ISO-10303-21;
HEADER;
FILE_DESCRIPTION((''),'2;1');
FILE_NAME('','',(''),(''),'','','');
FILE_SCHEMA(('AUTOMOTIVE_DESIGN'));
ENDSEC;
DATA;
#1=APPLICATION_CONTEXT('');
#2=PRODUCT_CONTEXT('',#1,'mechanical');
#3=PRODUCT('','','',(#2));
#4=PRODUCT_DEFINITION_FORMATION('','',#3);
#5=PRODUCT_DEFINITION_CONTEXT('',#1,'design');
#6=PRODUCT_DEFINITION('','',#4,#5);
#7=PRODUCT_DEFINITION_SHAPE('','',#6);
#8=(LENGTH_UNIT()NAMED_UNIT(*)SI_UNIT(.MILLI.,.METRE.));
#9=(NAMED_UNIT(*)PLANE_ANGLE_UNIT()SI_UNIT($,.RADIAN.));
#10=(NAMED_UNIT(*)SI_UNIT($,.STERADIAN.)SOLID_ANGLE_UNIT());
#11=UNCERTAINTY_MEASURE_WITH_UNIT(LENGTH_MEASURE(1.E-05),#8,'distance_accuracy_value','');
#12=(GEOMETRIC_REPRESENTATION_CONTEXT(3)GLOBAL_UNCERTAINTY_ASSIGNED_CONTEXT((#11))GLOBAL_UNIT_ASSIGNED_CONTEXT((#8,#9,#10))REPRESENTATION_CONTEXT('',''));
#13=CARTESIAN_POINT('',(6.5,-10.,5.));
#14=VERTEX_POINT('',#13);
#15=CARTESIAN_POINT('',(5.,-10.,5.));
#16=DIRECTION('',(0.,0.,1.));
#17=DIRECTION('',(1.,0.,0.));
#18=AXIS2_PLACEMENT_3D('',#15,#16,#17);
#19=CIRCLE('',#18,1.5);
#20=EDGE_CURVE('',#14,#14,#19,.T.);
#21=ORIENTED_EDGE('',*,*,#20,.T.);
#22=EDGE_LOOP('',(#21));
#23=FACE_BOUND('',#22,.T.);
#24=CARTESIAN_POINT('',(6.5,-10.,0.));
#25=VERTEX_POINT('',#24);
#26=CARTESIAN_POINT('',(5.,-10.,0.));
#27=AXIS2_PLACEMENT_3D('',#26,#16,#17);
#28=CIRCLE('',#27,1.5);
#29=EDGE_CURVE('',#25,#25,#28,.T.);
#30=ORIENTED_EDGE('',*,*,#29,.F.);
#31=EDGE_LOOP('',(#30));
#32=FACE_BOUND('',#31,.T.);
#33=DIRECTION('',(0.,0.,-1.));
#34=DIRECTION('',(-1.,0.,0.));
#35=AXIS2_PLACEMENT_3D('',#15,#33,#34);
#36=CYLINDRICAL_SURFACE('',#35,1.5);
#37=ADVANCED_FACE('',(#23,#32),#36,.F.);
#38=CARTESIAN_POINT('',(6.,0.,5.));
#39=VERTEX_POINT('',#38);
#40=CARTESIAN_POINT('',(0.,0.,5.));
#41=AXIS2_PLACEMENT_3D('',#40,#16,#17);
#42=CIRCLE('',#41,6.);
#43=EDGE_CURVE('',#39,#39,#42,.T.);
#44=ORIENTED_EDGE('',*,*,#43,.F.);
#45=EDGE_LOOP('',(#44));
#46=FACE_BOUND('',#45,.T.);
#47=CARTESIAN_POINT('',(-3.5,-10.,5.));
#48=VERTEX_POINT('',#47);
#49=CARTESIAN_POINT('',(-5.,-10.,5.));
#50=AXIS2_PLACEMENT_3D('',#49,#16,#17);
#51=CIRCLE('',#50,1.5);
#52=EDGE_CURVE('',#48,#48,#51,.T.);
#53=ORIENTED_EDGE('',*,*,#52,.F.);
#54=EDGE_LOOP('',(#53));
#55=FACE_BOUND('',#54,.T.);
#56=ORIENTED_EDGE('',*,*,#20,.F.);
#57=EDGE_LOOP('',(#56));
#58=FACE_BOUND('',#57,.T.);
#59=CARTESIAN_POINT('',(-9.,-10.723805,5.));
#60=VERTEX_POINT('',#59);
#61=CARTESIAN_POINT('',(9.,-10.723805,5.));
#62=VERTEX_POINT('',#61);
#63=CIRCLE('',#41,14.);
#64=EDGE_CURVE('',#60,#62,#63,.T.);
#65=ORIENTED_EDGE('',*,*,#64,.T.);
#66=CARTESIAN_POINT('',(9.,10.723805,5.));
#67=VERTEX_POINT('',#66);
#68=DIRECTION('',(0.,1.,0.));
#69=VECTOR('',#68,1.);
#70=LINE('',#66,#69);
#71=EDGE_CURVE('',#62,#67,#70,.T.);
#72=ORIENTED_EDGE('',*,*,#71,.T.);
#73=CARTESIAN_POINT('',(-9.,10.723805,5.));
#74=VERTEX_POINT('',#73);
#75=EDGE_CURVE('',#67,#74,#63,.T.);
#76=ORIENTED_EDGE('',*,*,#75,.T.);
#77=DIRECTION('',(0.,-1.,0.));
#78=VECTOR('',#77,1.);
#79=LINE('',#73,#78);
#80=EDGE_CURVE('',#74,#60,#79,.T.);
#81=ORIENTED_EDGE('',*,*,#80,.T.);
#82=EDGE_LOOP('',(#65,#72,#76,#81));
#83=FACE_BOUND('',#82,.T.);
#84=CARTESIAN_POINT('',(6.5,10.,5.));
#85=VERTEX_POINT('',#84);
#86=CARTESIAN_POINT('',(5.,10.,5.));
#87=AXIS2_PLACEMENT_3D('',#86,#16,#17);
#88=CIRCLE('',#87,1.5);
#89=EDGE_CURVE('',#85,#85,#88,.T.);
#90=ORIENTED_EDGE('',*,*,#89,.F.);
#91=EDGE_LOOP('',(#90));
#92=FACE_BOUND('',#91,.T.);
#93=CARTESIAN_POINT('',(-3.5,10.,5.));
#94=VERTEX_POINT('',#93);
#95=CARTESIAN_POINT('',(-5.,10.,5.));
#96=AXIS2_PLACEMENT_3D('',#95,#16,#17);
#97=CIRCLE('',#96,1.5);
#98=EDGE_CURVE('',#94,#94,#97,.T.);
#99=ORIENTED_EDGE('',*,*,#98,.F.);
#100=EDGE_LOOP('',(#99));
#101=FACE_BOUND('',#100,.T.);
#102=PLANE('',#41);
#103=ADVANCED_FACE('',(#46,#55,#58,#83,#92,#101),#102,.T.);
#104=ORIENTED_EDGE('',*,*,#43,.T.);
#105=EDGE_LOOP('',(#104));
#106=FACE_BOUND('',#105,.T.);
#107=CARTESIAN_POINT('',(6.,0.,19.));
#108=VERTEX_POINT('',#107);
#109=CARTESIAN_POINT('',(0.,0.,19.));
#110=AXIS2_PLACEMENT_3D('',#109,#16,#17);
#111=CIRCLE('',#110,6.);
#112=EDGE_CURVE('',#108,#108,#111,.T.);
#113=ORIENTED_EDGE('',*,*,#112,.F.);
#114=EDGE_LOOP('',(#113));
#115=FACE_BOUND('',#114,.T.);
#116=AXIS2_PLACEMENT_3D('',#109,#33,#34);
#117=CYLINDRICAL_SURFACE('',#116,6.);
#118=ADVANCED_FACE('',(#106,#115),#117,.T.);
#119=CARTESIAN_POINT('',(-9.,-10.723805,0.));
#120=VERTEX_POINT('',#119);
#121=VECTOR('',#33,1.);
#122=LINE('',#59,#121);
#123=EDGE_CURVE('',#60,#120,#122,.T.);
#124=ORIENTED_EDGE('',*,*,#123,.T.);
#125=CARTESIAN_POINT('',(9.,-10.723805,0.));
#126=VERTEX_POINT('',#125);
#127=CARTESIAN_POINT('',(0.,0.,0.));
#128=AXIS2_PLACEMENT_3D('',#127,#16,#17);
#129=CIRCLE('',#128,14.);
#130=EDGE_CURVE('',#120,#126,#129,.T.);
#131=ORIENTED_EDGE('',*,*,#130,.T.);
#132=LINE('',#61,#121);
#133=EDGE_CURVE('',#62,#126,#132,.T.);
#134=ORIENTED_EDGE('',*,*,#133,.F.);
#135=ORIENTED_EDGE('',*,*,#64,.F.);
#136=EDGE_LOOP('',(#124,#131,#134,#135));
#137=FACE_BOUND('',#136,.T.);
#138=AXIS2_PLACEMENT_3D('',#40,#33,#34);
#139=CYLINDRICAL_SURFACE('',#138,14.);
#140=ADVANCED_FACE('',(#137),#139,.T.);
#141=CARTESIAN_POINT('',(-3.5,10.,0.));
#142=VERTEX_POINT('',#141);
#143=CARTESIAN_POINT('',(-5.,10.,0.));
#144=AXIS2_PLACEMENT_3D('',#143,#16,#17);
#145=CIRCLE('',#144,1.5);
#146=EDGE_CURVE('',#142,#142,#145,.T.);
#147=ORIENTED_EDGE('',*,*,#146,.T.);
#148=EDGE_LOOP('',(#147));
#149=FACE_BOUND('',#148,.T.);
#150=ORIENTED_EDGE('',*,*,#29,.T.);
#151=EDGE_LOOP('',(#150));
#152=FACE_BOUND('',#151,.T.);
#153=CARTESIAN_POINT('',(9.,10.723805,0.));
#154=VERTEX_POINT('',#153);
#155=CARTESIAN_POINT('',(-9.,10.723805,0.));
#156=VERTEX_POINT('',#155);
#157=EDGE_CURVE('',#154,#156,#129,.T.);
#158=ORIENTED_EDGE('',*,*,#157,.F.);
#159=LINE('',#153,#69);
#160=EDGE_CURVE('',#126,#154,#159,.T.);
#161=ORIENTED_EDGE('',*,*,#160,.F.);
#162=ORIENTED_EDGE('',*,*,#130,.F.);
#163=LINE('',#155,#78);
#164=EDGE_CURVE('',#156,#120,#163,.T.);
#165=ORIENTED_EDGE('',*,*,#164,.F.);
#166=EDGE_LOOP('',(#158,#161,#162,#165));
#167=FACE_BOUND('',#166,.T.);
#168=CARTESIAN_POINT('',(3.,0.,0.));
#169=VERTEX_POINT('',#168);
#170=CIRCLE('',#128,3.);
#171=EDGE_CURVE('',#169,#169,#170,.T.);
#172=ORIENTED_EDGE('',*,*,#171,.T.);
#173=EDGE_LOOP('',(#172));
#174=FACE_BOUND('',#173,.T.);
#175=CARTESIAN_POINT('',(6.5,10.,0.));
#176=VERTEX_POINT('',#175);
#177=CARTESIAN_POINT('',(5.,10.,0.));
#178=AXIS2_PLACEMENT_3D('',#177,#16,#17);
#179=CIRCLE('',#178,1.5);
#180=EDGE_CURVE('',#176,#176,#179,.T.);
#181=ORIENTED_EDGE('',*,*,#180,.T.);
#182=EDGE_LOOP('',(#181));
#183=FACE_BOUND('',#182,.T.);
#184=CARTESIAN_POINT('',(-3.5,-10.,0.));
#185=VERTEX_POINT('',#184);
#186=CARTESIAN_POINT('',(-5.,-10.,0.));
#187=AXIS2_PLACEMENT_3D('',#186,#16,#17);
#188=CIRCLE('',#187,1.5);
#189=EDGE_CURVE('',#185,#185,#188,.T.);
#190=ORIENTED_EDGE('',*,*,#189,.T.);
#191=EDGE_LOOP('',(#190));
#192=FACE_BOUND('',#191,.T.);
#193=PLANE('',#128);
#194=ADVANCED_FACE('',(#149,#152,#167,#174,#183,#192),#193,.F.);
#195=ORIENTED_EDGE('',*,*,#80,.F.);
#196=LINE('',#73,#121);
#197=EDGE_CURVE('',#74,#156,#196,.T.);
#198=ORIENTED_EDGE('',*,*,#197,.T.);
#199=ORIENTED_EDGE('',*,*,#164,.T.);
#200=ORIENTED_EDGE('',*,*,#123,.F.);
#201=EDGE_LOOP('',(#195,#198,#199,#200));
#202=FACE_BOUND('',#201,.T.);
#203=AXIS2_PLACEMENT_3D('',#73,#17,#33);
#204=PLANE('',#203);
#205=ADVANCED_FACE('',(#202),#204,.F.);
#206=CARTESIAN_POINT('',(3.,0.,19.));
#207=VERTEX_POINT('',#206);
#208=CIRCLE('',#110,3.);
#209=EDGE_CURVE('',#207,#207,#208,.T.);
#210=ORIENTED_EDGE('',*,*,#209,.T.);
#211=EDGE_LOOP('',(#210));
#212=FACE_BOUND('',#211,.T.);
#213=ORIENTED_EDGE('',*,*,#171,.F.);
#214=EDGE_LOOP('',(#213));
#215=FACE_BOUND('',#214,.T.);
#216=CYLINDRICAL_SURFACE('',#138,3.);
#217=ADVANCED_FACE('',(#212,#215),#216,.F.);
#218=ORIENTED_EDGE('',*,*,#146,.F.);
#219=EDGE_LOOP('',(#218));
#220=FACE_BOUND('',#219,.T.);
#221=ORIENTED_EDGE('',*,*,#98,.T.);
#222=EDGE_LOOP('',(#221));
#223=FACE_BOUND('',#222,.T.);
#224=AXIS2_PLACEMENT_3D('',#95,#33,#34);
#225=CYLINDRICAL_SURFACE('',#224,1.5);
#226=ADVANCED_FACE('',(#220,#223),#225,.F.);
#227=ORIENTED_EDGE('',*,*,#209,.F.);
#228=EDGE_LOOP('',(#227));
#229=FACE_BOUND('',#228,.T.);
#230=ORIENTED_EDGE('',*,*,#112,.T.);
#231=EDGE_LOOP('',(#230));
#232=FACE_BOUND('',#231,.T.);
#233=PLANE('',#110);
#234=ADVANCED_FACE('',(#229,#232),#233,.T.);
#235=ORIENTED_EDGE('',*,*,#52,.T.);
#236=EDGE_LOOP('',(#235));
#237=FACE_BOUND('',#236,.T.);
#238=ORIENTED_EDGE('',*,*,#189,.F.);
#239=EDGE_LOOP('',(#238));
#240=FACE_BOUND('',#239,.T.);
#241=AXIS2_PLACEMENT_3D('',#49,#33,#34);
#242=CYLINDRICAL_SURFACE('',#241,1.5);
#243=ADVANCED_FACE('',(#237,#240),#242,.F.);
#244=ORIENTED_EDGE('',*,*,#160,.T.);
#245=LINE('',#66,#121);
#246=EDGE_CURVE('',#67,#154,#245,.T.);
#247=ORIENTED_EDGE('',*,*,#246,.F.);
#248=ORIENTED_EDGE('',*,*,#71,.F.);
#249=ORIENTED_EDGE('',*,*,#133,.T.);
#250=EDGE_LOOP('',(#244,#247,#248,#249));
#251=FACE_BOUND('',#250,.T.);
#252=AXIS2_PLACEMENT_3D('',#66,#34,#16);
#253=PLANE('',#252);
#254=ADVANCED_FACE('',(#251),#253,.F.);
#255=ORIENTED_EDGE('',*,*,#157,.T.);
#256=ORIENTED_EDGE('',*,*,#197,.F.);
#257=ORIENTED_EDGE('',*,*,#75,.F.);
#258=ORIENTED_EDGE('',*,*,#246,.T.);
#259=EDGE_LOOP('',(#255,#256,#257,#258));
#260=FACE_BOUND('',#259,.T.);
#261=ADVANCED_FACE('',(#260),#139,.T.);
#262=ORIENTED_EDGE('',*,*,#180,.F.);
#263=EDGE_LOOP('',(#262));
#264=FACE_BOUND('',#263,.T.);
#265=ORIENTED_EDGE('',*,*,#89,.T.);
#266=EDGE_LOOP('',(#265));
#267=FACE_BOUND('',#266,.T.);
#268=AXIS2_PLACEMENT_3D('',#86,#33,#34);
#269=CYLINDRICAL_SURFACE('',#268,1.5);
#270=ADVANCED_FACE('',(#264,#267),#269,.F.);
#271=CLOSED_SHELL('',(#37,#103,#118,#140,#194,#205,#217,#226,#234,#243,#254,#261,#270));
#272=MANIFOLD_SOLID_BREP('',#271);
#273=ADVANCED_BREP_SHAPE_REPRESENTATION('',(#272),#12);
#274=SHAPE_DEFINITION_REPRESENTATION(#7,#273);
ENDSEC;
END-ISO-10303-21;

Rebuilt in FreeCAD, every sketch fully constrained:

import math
import FreeCAD as App
import Part
import Sketcher

doc = App.newDocument("Part")
body = doc.addObject("PartDesign::Body", "Body")

# Sketch on XY plane
sketch1 = doc.addObject("Sketcher::SketchObject", "Sketch")
body.addObject(sketch1)
sketch1.AttachmentSupport = (doc.XY_Plane, [""])
sketch1.MapMode = "FlatFace"
sketch1.addGeometry([
    Part.LineSegment(App.Vector(-9, 10.7, 0), App.Vector(-9, -10.7, 0)),  # 0
    Part.ArcOfCircle(Part.Circle(App.Vector(0, 0, 0), App.Vector(0, 0, 1), 14), math.radians(-130), math.radians(-50)),  # 1
    Part.LineSegment(App.Vector(9, -10.7, 0), App.Vector(9, 10.7, 0)),  # 2
    Part.ArcOfCircle(Part.Circle(App.Vector(0, 0, 0), App.Vector(0, 0, 1), 14), math.radians(50), math.radians(130)),  # 3
    Part.Circle(App.Vector(-5, -10, 0), App.Vector(0, 0, 1), 1.5),  # 4
    Part.Circle(App.Vector(5, -10, 0), App.Vector(0, 0, 1), 1.5),  # 5
    Part.Circle(App.Vector(-5, 10, 0), App.Vector(0, 0, 1), 1.5),  # 6
    Part.Circle(App.Vector(0, 0, 0), App.Vector(0, 0, 1), 3),  # 7
    Part.Circle(App.Vector(5, 10, 0), App.Vector(0, 0, 1), 1.5),  # 8
], False)
sketch1.addConstraint([
    Sketcher.Constraint("Coincident", 0, 2, 1, 1),
    Sketcher.Constraint("Coincident", 1, 2, 2, 1),
    Sketcher.Constraint("Coincident", 2, 2, 3, 1),
    Sketcher.Constraint("Coincident", 3, 2, 0, 1),
    Sketcher.Constraint("Vertical", 0),
    Sketcher.Constraint("Vertical", 2),
    Sketcher.Constraint("Coincident", 1, 3, -1, 1),
    Sketcher.Constraint("Coincident", 3, 3, -1, 1),
    Sketcher.Constraint("Coincident", 7, 3, -1, 1),
    Sketcher.Constraint("Equal", 1, 3),
    Sketcher.Constraint("Equal", 4, 5),
    Sketcher.Constraint("Equal", 5, 6),
    Sketcher.Constraint("Equal", 6, 8),
    Sketcher.Constraint("Symmetric", 5, 3, 6, 3, -1, 1),
    Sketcher.Constraint("Symmetric", 4, 3, 8, 3, -1, 1),
    Sketcher.Constraint("Symmetric", 4, 3, 5, 3, -2),
    Sketcher.Constraint("Horizontal", 0, 2, 1, 2),
    Sketcher.Constraint("Diameter", 4, 3.0),
    Sketcher.Constraint("Diameter", 7, 6.0),
    Sketcher.Constraint("Radius", 1, 14.0),
    Sketcher.Constraint("DistanceX", 4, 3, -1, 1, 5.0),
    Sketcher.Constraint("DistanceY", 4, 3, -1, 1, 10.0),
    Sketcher.Constraint("DistanceX", 0, 2, -1, 1, 9.0),
])
pad1 = doc.addObject("PartDesign::Pad", "Pad")
body.addObject(pad1)
pad1.Profile = sketch1
pad1.Length = 5

# Sketch on XY plane
sketch2 = doc.addObject("Sketcher::SketchObject", "Sketch001")
body.addObject(sketch2)
sketch2.AttachmentSupport = (doc.XY_Plane, [""])
sketch2.MapMode = "FlatFace"
sketch2.AttachmentOffset = App.Placement(App.Vector(0, 0, 5), App.Rotation())
sketch2.addGeometry([
    Part.Circle(App.Vector(0, 0, 0), App.Vector(0, 0, 1), 6),
    Part.Circle(App.Vector(0, 0, 0), App.Vector(0, 0, 1), 3),
], False)
sketch2.addConstraint([
    Sketcher.Constraint("Coincident", 0, 3, -1, 1),
    Sketcher.Constraint("Coincident", 1, 3, -1, 1),
    Sketcher.Constraint("Diameter", 0, 12.0),
    Sketcher.Constraint("Diameter", 1, 6.0),
])
pad2 = doc.addObject("PartDesign::Pad", "Pad001")
body.addObject(pad2)
pad2.Profile = sketch2
pad2.Length = 14

doc.recompute()
